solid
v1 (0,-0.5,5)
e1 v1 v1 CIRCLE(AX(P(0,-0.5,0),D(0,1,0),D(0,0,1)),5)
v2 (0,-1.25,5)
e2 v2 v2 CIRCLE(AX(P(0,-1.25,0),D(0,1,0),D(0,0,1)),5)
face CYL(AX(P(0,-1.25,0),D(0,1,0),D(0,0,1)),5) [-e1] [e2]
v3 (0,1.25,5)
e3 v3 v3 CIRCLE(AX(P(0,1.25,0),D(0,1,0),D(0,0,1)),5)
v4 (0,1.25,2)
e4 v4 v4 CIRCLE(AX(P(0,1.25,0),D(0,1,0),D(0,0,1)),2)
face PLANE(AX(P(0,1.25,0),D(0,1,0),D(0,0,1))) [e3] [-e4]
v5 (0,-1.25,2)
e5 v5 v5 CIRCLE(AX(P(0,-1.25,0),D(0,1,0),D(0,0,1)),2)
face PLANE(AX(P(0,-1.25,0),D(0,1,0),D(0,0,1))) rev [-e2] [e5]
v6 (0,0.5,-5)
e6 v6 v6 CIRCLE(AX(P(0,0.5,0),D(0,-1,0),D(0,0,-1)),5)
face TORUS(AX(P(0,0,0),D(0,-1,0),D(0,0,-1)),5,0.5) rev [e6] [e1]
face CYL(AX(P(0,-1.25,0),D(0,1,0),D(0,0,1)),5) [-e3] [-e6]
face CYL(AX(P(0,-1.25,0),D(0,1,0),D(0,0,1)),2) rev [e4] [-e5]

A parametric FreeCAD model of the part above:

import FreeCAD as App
import Part
import Sketcher
Q = App.Units.Quantity

doc = App.newDocument("Part")
params = doc.addObject("Spreadsheet::Sheet", "Params")
for row, (alias, value) in enumerate([
    ("sketch1_diameter", "10 mm"),
    ("sketch1_diameter2", "4 mm"),
    ("pad1_length", "1.25 mm"),
    ("pad1_length2", "1.25 mm"),
    ("sketch2_diameter", "1 mm"),
    ("groove_angle", "360 deg"),
], start=1):
    params.set(f"A{row}", alias)
    params.set(f"B{row}", "=" + value)
    params.setAlias(f"B{row}", alias)

body = doc.addObject("PartDesign::Body", "Body")

# Sketch on XZ plane
sketch1 = body.newObject("Sketcher::SketchObject", "Sketch")
sketch1.AttachmentSupport = (doc.getObject("XZ_Plane"), [""])
sketch1.MapMode = "FlatFace"
sketch1.addGeometry([
    Part.Circle(App.Vector(0, 0, 0), App.Vector(0, 0, 1), 5),
    Part.Circle(App.Vector(0, 0, 0), App.Vector(0, 0, 1), 2),
], False)
sketch1.addConstraint([
    Sketcher.Constraint("Coincident", 0, 3, -1, 1),
    Sketcher.Constraint("Coincident", 1, 3, -1, 1),
    Sketcher.Constraint("Diameter", 0, Q("10 mm")),
    Sketcher.Constraint("Diameter", 1, Q("4 mm")),
])
sketch1.setExpression("Constraints[2]", "Params.sketch1_diameter")
sketch1.setExpression("Constraints[3]", "Params.sketch1_diameter2")
pad1 = body.newObject("PartDesign::Pad", "Pad")
pad1.Profile = sketch1
pad1.Type = "TwoLengths"
pad1.setExpression("Length", "Params.pad1_length")
pad1.setExpression("Length2", "Params.pad1_length2")
pad1.Reversed = True

# Sketch on XY plane
sketch2 = body.newObject("Sketcher::SketchObject", "Sketch001")
sketch2.AttachmentSupport = (doc.getObject("XY_Plane"), [""])
sketch2.MapMode = "FlatFace"
sketch2.addGeometry(Part.Circle(App.Vector(5, 0, 0), App.Vector(0, 0, 1), 0.5), False)
sketch2.addConstraint([
    Sketcher.Constraint("PointOnObject", 0, 3, -1),
    Sketcher.Constraint("Diameter", 0, Q("1 mm")),
    Sketcher.Constraint("DistanceX", -1, 1, 0, 3, Q("5 mm")),
])
sketch2.setExpression("Constraints[1]", "Params.sketch2_diameter")
groove = body.newObject("PartDesign::Groove", "Groove")
groove.Profile = sketch2
groove.ReferenceAxis = (sketch2, ["V_Axis"])
groove.setExpression("Angle", "Params.groove_angle")

doc.recompute()
